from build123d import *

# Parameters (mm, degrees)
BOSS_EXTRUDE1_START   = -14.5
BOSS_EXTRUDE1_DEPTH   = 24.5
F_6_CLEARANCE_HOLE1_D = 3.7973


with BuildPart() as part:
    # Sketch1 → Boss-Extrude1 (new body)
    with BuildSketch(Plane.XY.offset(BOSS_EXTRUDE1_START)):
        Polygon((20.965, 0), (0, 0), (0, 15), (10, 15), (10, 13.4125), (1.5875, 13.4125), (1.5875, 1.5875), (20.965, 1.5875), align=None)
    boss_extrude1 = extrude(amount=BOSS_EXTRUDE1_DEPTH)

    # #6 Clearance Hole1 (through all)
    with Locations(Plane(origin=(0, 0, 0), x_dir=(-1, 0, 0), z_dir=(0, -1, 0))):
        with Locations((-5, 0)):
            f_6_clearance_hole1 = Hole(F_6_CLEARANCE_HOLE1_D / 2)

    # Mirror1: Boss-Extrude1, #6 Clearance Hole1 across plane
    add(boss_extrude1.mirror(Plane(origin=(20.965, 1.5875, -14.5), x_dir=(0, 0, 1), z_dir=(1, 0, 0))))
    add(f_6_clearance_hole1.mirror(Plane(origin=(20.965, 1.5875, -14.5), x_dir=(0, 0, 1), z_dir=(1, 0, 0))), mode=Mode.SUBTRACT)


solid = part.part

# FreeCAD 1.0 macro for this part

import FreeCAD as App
import Part
import Sketcher

V = App.Vector
Q = App.Units.Quantity

doc = App.newDocument("Part")
body = doc.addObject("PartDesign::Body", "Body")

sketch1 = body.newObject("Sketcher::SketchObject", "Sketch")
sketch1.AttachmentSupport = (doc.getObject("XY_Plane"), [""])
sketch1.MapMode = "FlatFace"
sketch1.AttachmentOffset = App.Placement(V(0, 0, -14.5), App.Rotation())
sketch1.addGeometry(Part.LineSegment(V(0, 0, 0), V(20.965, 0, 0)), False)
sketch1.addGeometry(Part.LineSegment(V(20.965, 0, 0), V(20.965, 1.5875, 0)), False)
sketch1.addGeometry(Part.LineSegment(V(20.965, 1.5875, 0), V(1.5875, 1.5875, 0)), False)
sketch1.addGeometry(Part.LineSegment(V(1.5875, 1.5875, 0), V(1.5875, 13.4125, 0)), False)
sketch1.addGeometry(Part.LineSegment(V(1.5875, 13.4125, 0), V(10, 13.4125, 0)), False)
sketch1.addGeometry(Part.LineSegment(V(10, 13.4125, 0), V(10, 15, 0)), False)
sketch1.addGeometry(Part.LineSegment(V(10, 15, 0), V(0, 15, 0)), False)
sketch1.addGeometry(Part.LineSegment(V(0, 15, 0), V(0, 0, 0)), False)
sketch1.addConstraint(Sketcher.Constraint("Coincident", 0, 2, 1, 1))
sketch1.addConstraint(Sketcher.Constraint("Coincident", 1, 2, 2, 1))
sketch1.addConstraint(Sketcher.Constraint("Coincident", 2, 2, 3, 1))
sketch1.addConstraint(Sketcher.Constraint("Coincident", 3, 2, 4, 1))
sketch1.addConstraint(Sketcher.Constraint("Coincident", 4, 2, 5, 1))
sketch1.addConstraint(Sketcher.Constraint("Coincident", 5, 2, 6, 1))
sketch1.addConstraint(Sketcher.Constraint("Coincident", 6, 2, 7, 1))
sketch1.addConstraint(Sketcher.Constraint("Coincident", 7, 2, 0, 1))
sketch1.addConstraint(Sketcher.Constraint("Horizontal", 0))
sketch1.addConstraint(Sketcher.Constraint("Vertical", 1))
sketch1.addConstraint(Sketcher.Constraint("Horizontal", 2))
sketch1.addConstraint(Sketcher.Constraint("Vertical", 3))
sketch1.addConstraint(Sketcher.Constraint("Horizontal", 4))
sketch1.addConstraint(Sketcher.Constraint("Vertical", 5))
sketch1.addConstraint(Sketcher.Constraint("Horizontal", 6))
sketch1.addConstraint(Sketcher.Constraint("Vertical", 7))
sketch1.addConstraint(Sketcher.Constraint("Coincident", 7, 2, -1, 1))
sketch1.addConstraint(Sketcher.Constraint("Equal", 1, 5))
sketch1.addConstraint(Sketcher.Constraint("DistanceX", 6, 2, 6, 1, Q("10 mm")))
sketch1.addConstraint(Sketcher.Constraint("DistanceY", 7, 2, 7, 1, Q("15 mm")))
sketch1.addConstraint(Sketcher.Constraint("DistanceX", 0, 1, 0, 2, Q("20.965 mm")))
sketch1.addConstraint(Sketcher.Constraint("DistanceY", 3, 1, 3, 2, Q("11.825 mm")))
sketch1.addConstraint(Sketcher.Constraint("DistanceX", 2, 2, 2, 1, Q("19.3775 mm")))
pad1 = body.newObject("PartDesign::Pad", "Pad")
pad1.Profile = sketch1
pad1.Length = 24.5

sketch2 = body.newObject("Sketcher::SketchObject", "Sketch001")
sketch2.AttachmentSupport = (doc.getObject("XZ_Plane"), [""])
sketch2.MapMode = "FlatFace"
sketch2.addGeometry(Part.Circle(V(5, 0, 0), V(0, 0, 1), 1.89865), False)
sketch2.addConstraint(Sketcher.Constraint("PointOnObject", 0, 3, -1))
sketch2.addConstraint(Sketcher.Constraint("DistanceX", -1, 1, 0, 3, Q("5 mm")))
sketch2.addConstraint(Sketcher.Constraint("Diameter", 0, Q("3.7973 mm")))
doc.recompute()
hole = body.newObject("PartDesign::Hole", "Hole")
hole.Profile = sketch2
hole.ThreadType = "None"
hole.Diameter = 3.7973
hole.DepthType = "ThroughAll"
doc.recompute()

datumplane = body.newObject("PartDesign::Plane", "DatumPlane")
datumplane.AttachmentSupport = (doc.getObject("YZ_Plane"), [""])
datumplane.MapMode = "FlatFace"
datumplane.AttachmentOffset = App.Placement(V(0, 0, 20.965), App.Rotation())
mirrored = body.newObject("PartDesign::Mirrored", "Mirrored")
mirrored.Originals = [pad1, hole]
mirrored.MirrorPlane = (datumplane, [""])
body.Tip = mirrored

doc.recompute()
